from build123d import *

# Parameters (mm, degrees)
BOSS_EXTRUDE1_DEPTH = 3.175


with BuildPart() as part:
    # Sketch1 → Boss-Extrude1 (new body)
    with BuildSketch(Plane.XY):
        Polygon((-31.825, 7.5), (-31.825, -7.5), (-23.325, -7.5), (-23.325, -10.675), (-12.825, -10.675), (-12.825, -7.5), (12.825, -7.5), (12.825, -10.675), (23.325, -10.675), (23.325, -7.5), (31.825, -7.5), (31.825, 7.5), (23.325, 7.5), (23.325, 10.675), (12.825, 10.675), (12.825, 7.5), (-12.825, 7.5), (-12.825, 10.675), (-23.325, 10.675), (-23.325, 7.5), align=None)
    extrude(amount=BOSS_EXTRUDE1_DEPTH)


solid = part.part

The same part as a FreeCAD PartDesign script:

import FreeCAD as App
import Part
import Sketcher

V = App.Vector

doc = App.newDocument("Part")
params = doc.addObject("Spreadsheet::Sheet", "Params")
for row, (alias, value) in enumerate([
    ("sketch1_height", "15 mm"),
    ("sketch1_width", "8.5 mm"),
    ("sketch1_width2", "10.5 mm"),
    ("sketch1_width3", "25.65 mm"),
    ("pad1_length", "3.175 mm"),
], start=1):
    params.set(f"A{row}", alias)
    params.set(f"B{row}", "=" + value)
    params.setAlias(f"B{row}", alias)

body = doc.addObject("PartDesign::Body", "Body")

# Sketch on XY plane
sketch1 = doc.addObject("Sketcher::SketchObject", "Sketch")
body.addObject(sketch1)
sketch1.AttachmentSupport = (doc.XY_Plane, [""])
sketch1.MapMode = "FlatFace"
sketch1.addGeometry([
    Part.LineSegment(V(-31.8, 7.5, 0), V(-31.8, -7.5, 0)),  # 0
    Part.LineSegment(V(-31.8, -7.5, 0), V(-23.3, -7.5, 0)),  # 1
    Part.LineSegment(V(-23.3, -7.5, 0), V(-23.3, -10.7, 0)),  # 2
    Part.LineSegment(V(-23.3, -10.7, 0), V(-12.8, -10.7, 0)),  # 3
    Part.LineSegment(V(-12.8, -10.7, 0), V(-12.8, -7.5, 0)),  # 4
    Part.LineSegment(V(-12.8, -7.5, 0), V(12.8, -7.5, 0)),  # 5
    Part.LineSegment(V(12.8, -7.5, 0), V(12.8, -10.7, 0)),  # 6
    Part.LineSegment(V(12.8, -10.7, 0), V(23.3, -10.7, 0)),  # 7
    Part.LineSegment(V(23.3, -10.7, 0), V(23.3, -7.5, 0)),  # 8
    Part.LineSegment(V(23.3, -7.5, 0), V(31.8, -7.5, 0)),  # 9
    Part.LineSegment(V(31.8, -7.5, 0), V(31.8, 7.5, 0)),  # 10
    Part.LineSegment(V(31.8, 7.5, 0), V(23.3, 7.5, 0)),  # 11
    Part.LineSegment(V(23.3, 7.5, 0), V(23.3, 10.7, 0)),  # 12
    Part.LineSegment(V(23.3, 10.7, 0), V(12.8, 10.7, 0)),  # 13
    Part.LineSegment(V(12.8, 10.7, 0), V(12.8, 7.5, 0)),  # 14
    Part.LineSegment(V(12.8, 7.5, 0), V(-12.8, 7.5, 0)),  # 15
    Part.LineSegment(V(-12.8, 7.5, 0), V(-12.8, 10.7, 0)),  # 16
    Part.LineSegment(V(-12.8, 10.7, 0), V(-23.3, 10.7, 0)),  # 17
    Part.LineSegment(V(-23.3, 10.7, 0), V(-23.3, 7.5, 0)),  # 18
    Part.LineSegment(V(-23.3, 7.5, 0), V(-31.8, 7.5, 0)),  # 19
], False)
sketch1.addConstraint([
    Sketcher.Constraint("Coincident", 0, 2, 1, 1),
    Sketcher.Constraint("Coincident", 1, 2, 2, 1),
    Sketcher.Constraint("Coincident", 2, 2, 3, 1),
    Sketcher.Constraint("Coincident", 3, 2, 4, 1),
    Sketcher.Constraint("Coincident", 4, 2, 5, 1),
    Sketcher.Constraint("Coincident", 5, 2, 6, 1),
    Sketcher.Constraint("Coincident", 6, 2, 7, 1),
    Sketcher.Constraint("Coincident", 7, 2, 8, 1),
    Sketcher.Constraint("Coincident", 8, 2, 9, 1),
    Sketcher.Constraint("Coincident", 9, 2, 10, 1),
    Sketcher.Constraint("Coincident", 10, 2, 11, 1),
    Sketcher.Constraint("Coincident", 11, 2, 12, 1),
    Sketcher.Constraint("Coincident", 12, 2, 13, 1),
    Sketcher.Constraint("Coincident", 13, 2, 14, 1),
    Sketcher.Constraint("Coincident", 14, 2, 15, 1),
    Sketcher.Constraint("Coincident", 15, 2, 16, 1),
    Sketcher.Constraint("Coincident", 16, 2, 17, 1),
    Sketcher.Constraint("Coincident", 17, 2, 18, 1),
    Sketcher.Constraint("Coincident", 18, 2, 19, 1),
    Sketcher.Constraint("Coincident", 19, 2, 0, 1),
    Sketcher.Constraint("Vertical", 0),
    Sketcher.Constraint("Horizontal", 1),
    Sketcher.Constraint("Vertical", 2),
    Sketcher.Constraint("Horizontal", 3),
    Sketcher.Constraint("Vertical", 4),
    Sketcher.Constraint("Horizontal", 5),
    Sketcher.Constraint("Vertical", 6),
    Sketcher.Constraint("Horizontal", 7),
    Sketcher.Constraint("Vertical", 8),
    Sketcher.Constraint("Horizontal", 9),
    Sketcher.Constraint("Vertical", 10),
    Sketcher.Constraint("Horizontal", 11),
    Sketcher.Constraint("Vertical", 12),
    Sketcher.Constraint("Horizontal", 13),
    Sketcher.Constraint("Vertical", 14),
    Sketcher.Constraint("Horizontal", 15),
    Sketcher.Constraint("Vertical", 16),
    Sketcher.Constraint("Horizontal", 17),
    Sketcher.Constraint("Vertical", 18),
    Sketcher.Constraint("Horizontal", 19),
    Sketcher.Constraint("Symmetric", 0, 2, 10, 2, -1, 1),
    Sketcher.Constraint("Symmetric", 2, 2, 12, 2, -1, 1),
    Sketcher.Constraint("Symmetric", 4, 2, 14, 2, -1, 1),
    Sketcher.Constraint("Symmetric", 6, 2, 16, 2, -1, 1),
    Sketcher.Constraint("Symmetric", 8, 2, 18, 2, -1, 1),
    Sketcher.Constraint("Symmetric", 3, 2, 6, 2, -2),
    Sketcher.Constraint("Symmetric", 1, 2, 8, 2, -2),
    Sketcher.Constraint("Horizontal", 1, 2, 4, 2),
    Sketcher.Constraint("DistanceY", 0, 2, 0, 1, 15.0),
    Sketcher.Constraint("DistanceX", 1, 1, 1, 2, 8.5),
    Sketcher.Constraint("DistanceX", 3, 1, 3, 2, 10.5),
    Sketcher.Constraint("DistanceX", 5, 1, 5, 2, 25.65),
    Sketcher.Constraint("DistanceY", 2, 2, 2, 1, 3.175),
])
sketch1.setExpression("Constraints[48]", "Params.sketch1_height")
sketch1.setExpression("Constraints[49]", "Params.sketch1_width")
sketch1.setExpression("Constraints[50]", "Params.sketch1_width2")
sketch1.setExpression("Constraints[51]", "Params.sketch1_width3")
pad1 = doc.addObject("PartDesign::Pad", "Pad")
body.addObject(pad1)
pad1.Profile = sketch1
pad1.setExpression("Length", "Params.pad1_length")

doc.recompute()
